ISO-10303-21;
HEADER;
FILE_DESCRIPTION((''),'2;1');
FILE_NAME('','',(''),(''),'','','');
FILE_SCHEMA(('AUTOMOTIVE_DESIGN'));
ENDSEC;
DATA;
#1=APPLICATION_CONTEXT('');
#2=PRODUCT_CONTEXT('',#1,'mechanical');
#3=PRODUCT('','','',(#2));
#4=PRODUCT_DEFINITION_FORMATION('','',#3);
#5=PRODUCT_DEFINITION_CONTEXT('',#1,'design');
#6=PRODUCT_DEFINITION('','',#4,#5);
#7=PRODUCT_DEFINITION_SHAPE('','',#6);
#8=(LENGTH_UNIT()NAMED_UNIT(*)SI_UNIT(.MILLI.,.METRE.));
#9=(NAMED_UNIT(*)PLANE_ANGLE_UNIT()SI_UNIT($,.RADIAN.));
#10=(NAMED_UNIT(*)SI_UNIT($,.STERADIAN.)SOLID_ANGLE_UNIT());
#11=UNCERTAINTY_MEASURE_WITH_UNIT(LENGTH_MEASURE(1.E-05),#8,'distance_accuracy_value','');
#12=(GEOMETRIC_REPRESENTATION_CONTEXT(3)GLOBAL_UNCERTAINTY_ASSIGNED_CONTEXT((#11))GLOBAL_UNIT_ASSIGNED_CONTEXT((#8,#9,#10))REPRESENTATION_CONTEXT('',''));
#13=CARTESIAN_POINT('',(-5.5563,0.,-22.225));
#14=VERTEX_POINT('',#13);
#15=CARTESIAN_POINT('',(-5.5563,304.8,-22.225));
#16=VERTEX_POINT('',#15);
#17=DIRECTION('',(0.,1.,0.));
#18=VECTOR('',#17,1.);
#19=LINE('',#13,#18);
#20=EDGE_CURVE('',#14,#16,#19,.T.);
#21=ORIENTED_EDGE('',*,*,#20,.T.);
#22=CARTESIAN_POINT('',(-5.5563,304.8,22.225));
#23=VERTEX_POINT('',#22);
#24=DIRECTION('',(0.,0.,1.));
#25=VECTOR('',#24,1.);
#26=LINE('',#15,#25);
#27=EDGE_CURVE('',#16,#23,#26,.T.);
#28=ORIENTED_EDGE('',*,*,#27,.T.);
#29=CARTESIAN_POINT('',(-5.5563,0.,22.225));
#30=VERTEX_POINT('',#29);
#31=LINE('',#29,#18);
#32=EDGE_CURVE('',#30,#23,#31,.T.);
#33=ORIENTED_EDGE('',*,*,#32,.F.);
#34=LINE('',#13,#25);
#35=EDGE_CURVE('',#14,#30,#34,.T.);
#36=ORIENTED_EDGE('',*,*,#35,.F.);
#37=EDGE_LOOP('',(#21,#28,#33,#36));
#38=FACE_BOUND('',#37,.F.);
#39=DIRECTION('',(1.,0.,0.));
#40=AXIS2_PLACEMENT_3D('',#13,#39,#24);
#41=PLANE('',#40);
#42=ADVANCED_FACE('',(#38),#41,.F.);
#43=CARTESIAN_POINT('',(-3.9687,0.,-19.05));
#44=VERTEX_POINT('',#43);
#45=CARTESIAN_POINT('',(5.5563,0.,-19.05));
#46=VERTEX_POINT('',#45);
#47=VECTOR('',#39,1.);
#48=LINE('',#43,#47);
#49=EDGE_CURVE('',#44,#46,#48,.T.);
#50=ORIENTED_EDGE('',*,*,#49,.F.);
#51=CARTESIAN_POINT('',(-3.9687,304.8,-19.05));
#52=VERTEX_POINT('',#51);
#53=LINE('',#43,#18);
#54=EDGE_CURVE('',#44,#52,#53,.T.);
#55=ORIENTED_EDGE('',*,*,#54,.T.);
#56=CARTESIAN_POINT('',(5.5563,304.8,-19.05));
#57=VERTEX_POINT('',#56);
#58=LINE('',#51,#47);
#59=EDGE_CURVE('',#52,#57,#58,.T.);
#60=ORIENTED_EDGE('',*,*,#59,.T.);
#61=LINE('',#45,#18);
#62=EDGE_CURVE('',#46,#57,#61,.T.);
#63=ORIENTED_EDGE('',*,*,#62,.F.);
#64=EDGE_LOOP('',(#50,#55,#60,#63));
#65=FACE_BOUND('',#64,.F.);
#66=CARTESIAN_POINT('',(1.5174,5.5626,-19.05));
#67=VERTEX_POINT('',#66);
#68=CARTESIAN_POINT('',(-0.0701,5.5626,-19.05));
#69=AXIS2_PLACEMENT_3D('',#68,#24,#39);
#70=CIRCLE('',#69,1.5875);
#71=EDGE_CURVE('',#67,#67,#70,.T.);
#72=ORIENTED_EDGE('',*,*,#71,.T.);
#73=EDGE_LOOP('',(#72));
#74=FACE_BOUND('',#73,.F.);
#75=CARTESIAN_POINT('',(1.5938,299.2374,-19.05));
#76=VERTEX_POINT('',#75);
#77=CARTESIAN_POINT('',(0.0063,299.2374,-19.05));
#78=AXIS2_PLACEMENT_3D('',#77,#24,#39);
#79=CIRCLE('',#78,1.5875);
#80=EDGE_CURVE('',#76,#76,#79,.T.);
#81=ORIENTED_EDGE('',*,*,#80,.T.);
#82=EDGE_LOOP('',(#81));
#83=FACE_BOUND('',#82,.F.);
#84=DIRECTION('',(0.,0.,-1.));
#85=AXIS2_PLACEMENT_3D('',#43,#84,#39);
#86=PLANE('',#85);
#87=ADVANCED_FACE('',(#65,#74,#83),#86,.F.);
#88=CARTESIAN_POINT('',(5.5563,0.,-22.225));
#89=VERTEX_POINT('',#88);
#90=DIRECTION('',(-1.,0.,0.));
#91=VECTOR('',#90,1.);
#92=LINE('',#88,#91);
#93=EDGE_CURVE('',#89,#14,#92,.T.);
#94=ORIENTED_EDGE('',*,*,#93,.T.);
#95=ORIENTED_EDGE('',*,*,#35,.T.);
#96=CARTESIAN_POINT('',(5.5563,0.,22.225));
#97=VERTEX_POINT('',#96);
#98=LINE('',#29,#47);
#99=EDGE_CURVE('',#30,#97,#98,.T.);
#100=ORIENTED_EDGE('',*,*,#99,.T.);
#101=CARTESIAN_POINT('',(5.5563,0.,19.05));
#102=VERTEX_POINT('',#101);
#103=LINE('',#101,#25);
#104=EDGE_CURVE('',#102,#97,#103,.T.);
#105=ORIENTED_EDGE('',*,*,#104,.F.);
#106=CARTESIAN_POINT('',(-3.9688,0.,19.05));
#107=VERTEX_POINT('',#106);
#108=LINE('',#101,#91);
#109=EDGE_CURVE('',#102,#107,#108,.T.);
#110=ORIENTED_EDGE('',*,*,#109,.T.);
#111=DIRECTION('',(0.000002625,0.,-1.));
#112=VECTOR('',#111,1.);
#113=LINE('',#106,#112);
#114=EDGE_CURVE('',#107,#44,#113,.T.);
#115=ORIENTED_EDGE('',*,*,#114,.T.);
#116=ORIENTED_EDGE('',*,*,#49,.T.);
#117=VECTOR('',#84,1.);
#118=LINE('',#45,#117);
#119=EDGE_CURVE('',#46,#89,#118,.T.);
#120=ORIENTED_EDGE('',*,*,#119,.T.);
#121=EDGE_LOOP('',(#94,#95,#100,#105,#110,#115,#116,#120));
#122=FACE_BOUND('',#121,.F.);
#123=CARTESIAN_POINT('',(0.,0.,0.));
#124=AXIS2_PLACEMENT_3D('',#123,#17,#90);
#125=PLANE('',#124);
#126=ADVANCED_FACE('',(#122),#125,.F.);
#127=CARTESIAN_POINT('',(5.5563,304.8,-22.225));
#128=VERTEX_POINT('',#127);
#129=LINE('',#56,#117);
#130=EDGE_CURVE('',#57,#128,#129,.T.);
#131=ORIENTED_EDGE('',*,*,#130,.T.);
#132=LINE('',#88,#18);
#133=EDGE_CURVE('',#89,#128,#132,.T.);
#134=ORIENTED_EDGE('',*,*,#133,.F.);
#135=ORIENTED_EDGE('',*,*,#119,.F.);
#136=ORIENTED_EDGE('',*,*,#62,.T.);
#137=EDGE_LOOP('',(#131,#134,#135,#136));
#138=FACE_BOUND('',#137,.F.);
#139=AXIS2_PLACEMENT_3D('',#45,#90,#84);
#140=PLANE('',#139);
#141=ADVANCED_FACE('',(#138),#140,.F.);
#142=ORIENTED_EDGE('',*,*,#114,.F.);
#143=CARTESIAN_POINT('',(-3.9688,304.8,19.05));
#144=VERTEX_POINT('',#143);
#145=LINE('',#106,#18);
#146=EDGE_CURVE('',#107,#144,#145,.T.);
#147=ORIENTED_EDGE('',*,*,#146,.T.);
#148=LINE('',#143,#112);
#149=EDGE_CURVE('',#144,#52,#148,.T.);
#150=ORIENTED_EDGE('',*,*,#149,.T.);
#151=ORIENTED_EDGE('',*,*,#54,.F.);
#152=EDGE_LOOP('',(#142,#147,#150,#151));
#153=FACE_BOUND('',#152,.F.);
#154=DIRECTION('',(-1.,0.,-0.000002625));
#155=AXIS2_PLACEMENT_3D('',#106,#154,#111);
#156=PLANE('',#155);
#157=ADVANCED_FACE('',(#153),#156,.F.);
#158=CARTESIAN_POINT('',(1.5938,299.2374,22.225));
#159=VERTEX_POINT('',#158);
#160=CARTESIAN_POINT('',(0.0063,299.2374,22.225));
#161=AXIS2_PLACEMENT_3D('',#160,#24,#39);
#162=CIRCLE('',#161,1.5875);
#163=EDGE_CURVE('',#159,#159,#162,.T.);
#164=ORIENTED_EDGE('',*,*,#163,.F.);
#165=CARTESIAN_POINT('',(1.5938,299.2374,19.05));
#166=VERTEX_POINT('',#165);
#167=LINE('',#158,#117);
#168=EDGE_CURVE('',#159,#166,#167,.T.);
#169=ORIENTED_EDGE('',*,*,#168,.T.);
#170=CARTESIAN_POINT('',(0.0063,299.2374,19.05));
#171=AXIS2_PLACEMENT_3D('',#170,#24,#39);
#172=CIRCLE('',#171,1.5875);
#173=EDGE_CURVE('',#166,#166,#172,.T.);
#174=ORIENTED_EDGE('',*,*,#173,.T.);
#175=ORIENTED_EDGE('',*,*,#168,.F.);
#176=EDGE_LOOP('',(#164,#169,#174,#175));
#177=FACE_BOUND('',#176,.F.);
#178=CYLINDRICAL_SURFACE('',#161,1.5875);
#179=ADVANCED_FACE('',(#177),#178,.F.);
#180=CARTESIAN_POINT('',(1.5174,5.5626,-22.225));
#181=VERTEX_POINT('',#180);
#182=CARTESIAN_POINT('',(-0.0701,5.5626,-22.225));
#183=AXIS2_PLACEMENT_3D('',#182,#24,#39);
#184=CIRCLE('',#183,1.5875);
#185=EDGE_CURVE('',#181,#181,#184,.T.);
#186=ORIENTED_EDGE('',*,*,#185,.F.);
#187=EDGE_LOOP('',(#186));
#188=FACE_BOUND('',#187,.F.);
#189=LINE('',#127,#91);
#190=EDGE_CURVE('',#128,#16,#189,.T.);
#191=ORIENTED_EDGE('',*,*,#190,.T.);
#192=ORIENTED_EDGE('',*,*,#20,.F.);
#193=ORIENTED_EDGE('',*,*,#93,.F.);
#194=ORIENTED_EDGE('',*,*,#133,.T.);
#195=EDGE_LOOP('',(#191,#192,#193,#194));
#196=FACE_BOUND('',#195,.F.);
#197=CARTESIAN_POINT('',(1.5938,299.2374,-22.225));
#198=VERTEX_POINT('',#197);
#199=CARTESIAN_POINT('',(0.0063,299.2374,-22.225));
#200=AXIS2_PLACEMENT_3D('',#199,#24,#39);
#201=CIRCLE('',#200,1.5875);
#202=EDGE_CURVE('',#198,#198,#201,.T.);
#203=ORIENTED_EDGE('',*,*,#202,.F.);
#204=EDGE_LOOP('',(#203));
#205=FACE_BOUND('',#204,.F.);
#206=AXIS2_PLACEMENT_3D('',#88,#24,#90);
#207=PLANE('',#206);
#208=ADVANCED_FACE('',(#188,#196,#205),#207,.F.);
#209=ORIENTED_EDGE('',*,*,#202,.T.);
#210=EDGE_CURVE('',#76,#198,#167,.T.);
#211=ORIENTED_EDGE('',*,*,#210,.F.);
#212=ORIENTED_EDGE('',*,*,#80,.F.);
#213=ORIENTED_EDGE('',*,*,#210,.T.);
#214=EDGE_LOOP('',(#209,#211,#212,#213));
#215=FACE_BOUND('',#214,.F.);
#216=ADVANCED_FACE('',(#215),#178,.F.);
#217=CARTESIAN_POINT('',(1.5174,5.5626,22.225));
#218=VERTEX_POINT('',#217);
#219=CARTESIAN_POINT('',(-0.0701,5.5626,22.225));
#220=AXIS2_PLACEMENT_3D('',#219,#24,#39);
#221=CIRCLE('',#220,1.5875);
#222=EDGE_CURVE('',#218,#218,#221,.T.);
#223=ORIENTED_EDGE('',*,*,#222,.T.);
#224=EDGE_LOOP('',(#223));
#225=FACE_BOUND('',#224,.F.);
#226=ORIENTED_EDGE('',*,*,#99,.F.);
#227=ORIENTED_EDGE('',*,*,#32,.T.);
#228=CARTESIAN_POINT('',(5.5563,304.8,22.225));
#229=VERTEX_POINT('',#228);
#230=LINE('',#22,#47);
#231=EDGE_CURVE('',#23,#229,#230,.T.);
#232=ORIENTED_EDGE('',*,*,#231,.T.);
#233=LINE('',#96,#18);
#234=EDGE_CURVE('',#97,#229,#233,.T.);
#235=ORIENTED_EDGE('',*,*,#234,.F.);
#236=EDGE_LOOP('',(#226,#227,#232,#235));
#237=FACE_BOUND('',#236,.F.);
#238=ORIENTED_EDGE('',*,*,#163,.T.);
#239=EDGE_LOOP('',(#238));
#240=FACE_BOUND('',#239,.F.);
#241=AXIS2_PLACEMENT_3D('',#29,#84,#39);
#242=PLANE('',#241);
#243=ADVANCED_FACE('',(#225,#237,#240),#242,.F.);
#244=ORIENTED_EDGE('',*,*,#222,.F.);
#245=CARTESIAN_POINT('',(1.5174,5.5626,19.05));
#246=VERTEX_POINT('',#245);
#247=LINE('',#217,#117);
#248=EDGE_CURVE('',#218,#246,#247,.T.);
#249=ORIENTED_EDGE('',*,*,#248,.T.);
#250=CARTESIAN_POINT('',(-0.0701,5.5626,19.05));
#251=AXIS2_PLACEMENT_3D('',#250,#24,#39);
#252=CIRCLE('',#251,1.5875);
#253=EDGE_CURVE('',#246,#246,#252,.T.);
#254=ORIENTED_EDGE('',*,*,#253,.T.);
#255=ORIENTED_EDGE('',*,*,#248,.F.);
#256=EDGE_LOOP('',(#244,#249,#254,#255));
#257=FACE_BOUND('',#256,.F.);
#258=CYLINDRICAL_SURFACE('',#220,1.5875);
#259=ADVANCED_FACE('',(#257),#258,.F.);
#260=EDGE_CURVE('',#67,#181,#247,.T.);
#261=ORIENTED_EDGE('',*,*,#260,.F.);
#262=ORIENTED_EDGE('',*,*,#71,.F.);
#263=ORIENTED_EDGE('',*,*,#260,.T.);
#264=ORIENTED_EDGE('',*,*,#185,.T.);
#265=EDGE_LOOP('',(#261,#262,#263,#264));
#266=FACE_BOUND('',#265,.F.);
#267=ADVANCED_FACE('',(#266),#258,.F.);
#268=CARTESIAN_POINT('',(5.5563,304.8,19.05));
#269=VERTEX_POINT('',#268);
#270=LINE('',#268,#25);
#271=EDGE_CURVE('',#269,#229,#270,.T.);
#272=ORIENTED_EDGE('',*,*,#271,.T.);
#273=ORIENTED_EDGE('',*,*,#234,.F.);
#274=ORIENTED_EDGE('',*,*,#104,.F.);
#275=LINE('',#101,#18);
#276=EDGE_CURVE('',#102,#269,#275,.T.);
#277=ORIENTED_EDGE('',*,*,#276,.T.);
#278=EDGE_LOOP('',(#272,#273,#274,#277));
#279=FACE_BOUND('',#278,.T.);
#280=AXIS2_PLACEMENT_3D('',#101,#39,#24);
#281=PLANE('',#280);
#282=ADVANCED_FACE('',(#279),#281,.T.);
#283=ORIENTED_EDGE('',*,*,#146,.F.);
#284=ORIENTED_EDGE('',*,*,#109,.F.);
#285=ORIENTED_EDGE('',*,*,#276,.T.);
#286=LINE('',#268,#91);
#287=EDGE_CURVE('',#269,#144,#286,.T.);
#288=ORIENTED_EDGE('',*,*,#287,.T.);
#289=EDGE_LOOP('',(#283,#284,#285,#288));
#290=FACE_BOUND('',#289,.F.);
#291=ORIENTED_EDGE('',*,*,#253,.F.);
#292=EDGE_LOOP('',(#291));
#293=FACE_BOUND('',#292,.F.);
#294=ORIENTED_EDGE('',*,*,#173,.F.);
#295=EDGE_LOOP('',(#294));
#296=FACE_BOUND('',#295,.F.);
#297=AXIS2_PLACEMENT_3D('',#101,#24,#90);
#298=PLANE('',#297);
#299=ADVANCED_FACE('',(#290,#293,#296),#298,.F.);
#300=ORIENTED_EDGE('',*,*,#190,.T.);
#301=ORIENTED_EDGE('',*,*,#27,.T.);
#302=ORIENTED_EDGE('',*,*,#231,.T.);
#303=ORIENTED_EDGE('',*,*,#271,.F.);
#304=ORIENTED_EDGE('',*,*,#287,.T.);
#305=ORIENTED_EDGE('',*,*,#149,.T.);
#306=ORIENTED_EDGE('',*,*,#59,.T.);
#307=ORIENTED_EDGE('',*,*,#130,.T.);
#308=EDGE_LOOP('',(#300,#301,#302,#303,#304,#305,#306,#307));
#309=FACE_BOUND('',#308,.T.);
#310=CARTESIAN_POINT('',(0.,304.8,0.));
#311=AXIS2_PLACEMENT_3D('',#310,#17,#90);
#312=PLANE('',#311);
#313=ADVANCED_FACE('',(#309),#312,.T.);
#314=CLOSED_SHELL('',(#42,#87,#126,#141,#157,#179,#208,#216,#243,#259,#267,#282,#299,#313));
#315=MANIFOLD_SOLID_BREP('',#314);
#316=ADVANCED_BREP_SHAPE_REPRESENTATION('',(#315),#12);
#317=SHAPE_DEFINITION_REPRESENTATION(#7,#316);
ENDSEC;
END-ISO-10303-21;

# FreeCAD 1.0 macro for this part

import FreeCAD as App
import Part
import Sketcher
Q = App.Units.Quantity

doc = App.newDocument("Part")
body = doc.addObject("PartDesign::Body", "Body")

# Sketch on XZ plane
sketch1 = body.newObject("Sketcher::SketchObject", "Sketch")
sketch1.AttachmentSupport = (doc.getObject("XZ_Plane"), [""])
sketch1.MapMode = "FlatFace"
sketch1.addGeometry([
    Part.LineSegment(App.Vector(5.6, -19.1, 0), App.Vector(5.6, -22.2, 0)),  # 0
    Part.LineSegment(App.Vector(5.6, -22.2, 0), App.Vector(-5.6, -22.2, 0)),  # 1
    Part.LineSegment(App.Vector(-5.6, -22.2, 0), App.Vector(-5.6, 22.2, 0)),  # 2
    Part.LineSegment(App.Vector(-5.6, 22.2, 0), App.Vector(5.6, 22.2, 0)),  # 3
    Part.LineSegment(App.Vector(5.6, 22.2, 0), App.Vector(5.6, 19.1, 0)),  # 4
    Part.LineSegment(App.Vector(5.6, 19.1, 0), App.Vector(-4, 19.1, 0)),  # 5
    Part.LineSegment(App.Vector(-4, 19.1, 0), App.Vector(-4, -19.1, 0)),  # 6
    Part.LineSegment(App.Vector(-4, -19.1, 0), App.Vector(5.6, -19.1, 0)),  # 7
], False)
sketch1.addConstraint([
    Sketcher.Constraint("Coincident", 0, 2, 1, 1),
    Sketcher.Constraint("Coincident", 1, 2, 2, 1),
    Sketcher.Constraint("Coincident", 2, 2, 3, 1),
    Sketcher.Constraint("Coincident", 3, 2, 4, 1),
    Sketcher.Constraint("Coincident", 4, 2, 5, 1),
    Sketcher.Constraint("Coincident", 5, 2, 6, 1),
    Sketcher.Constraint("Coincident", 6, 2, 7, 1),
    Sketcher.Constraint("Coincident", 7, 2, 0, 1),
    Sketcher.Constraint("Vertical", 0),
    Sketcher.Constraint("Horizontal", 1),
    Sketcher.Constraint("Vertical", 2),
    Sketcher.Constraint("Horizontal", 3),
    Sketcher.Constraint("Vertical", 4),
    Sketcher.Constraint("Horizontal", 5),
    Sketcher.Constraint("Vertical", 6),
    Sketcher.Constraint("Horizontal", 7),
    Sketcher.Constraint("Symmetric", 0, 2, 2, 2, -1, 1),
    Sketcher.Constraint("Symmetric", 4, 2, 7, 2, -1),
    Sketcher.Constraint("DistanceY", 2, 1, 2, 2, Q("1.75 in")),
    Sketcher.Constraint("DistanceX", 1, 2, 1, 1, Q("0.4375 in")),
    Sketcher.Constraint("DistanceX", 5, 2, 5, 1, Q("0.375 in")),
    Sketcher.Constraint("DistanceY", 6, 2, 6, 1, Q("1.5 in")),
])
pad1 = body.newObject("PartDesign::Pad", "Pad")
pad1.Profile = sketch1
pad1.Length = Q("12 in")
pad1.Reversed = True

# Sketch on XY plane
sketch2 = body.newObject("Sketcher::SketchObject", "Sketch001")
sketch2.AttachmentSupport = (doc.getObject("XY_Plane"), [""])
sketch2.MapMode = "FlatFace"
sketch2.AttachmentOffset = App.Placement(App.Vector(0, 0, 0.875 * 25.4), App.Rotation())
sketch2.addGeometry([
    Part.Circle(App.Vector(0, 299.2, 0), App.Vector(0, 0, 1), 1.6),
    Part.Circle(App.Vector(-0.1, 5.6, 0), App.Vector(0, 0, 1), 1.6),
], False)
sketch2.addConstraint([
    Sketcher.Constraint("Equal", 0, 1),
    Sketcher.Constraint("Diameter", 0, Q("0.125 in")),
    Sketcher.Constraint("DistanceY", -1, 1, 0, 3, Q("11.781 in")),
    Sketcher.Constraint("DistanceY", -1, 1, 1, 3, Q("0.219 in")),
    Sketcher.Constraint("DistanceX", 1, 3, 0, 3, Q("0.003 in")),
    Sketcher.Constraint("DistanceX", -1, 1, 0, 3, Q("0.0063 mm")),
])
pocket1 = body.newObject("PartDesign::Pocket", "Pocket")
pocket1.Profile = sketch2
pocket1.Type = "ThroughAll"

doc.recompute()
